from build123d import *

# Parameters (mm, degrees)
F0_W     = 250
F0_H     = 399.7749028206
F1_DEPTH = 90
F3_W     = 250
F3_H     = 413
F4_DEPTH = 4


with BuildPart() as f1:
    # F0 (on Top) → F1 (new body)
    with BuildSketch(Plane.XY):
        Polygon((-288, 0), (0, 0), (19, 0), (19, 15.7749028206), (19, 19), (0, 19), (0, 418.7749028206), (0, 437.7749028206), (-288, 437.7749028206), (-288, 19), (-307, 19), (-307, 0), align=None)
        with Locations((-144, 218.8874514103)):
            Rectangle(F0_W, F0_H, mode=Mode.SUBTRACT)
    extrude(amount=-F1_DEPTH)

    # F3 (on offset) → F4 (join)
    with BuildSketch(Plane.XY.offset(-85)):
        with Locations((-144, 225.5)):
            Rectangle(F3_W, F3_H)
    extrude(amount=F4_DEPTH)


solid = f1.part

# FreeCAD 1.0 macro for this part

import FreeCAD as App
import Part
import Sketcher

doc = App.newDocument("Part")
body = doc.addObject("PartDesign::Body", "Body")

# Sketch on XY plane
sketch1 = body.newObject("Sketcher::SketchObject", "Sketch")
sketch1.AttachmentSupport = (doc.getObject("XY_Plane"), [""])
sketch1.MapMode = "FlatFace"
sketch1.addGeometry([
    Part.LineSegment(App.Vector(19, 0, 0), App.Vector(19, 19, 0)),  # 0
    Part.LineSegment(App.Vector(19, 19, 0), App.Vector(0, 19, 0)),  # 1
    Part.LineSegment(App.Vector(0, 19, 0), App.Vector(0, 438, 0)),  # 2
    Part.LineSegment(App.Vector(0, 438, 0), App.Vector(-288, 438, 0)),  # 3
    Part.LineSegment(App.Vector(-288, 438, 0), App.Vector(-288, 19, 0)),  # 4
    Part.LineSegment(App.Vector(-288, 19, 0), App.Vector(-307, 19, 0)),  # 5
    Part.LineSegment(App.Vector(-307, 19, 0), App.Vector(-307, 0, 0)),  # 6
    Part.LineSegment(App.Vector(-307, 0, 0), App.Vector(19, 0, 0)),  # 7
    Part.LineSegment(App.Vector(-19, 19, 0), App.Vector(-269, 19, 0)),  # 8
    Part.LineSegment(App.Vector(-269, 19, 0), App.Vector(-269, 419, 0)),  # 9
    Part.LineSegment(App.Vector(-269, 419, 0), App.Vector(-19, 419, 0)),  # 10
    Part.LineSegment(App.Vector(-19, 419, 0), App.Vector(-19, 19, 0)),  # 11
], False)
sketch1.addConstraint([
    Sketcher.Constraint("Coincident", 0, 2, 1, 1),
    Sketcher.Constraint("Coincident", 1, 2, 2, 1),
    Sketcher.Constraint("Coincident", 2, 2, 3, 1),
    Sketcher.Constraint("Coincident", 3, 2, 4, 1),
    Sketcher.Constraint("Coincident", 4, 2, 5, 1),
    Sketcher.Constraint("Coincident", 5, 2, 6, 1),
    Sketcher.Constraint("Coincident", 6, 2, 7, 1),
    Sketcher.Constraint("Coincident", 7, 2, 0, 1),
    Sketcher.Constraint("Coincident", 8, 2, 9, 1),
    Sketcher.Constraint("Coincident", 9, 2, 10, 1),
    Sketcher.Constraint("Coincident", 10, 2, 11, 1),
    Sketcher.Constraint("Coincident", 11, 2, 8, 1),
    Sketcher.Constraint("Vertical", 0),
    Sketcher.Constraint("Horizontal", 1),
    Sketcher.Constraint("Vertical", 2),
    Sketcher.Constraint("Horizontal", 3),
    Sketcher.Constraint("Vertical", 4),
    Sketcher.Constraint("Horizontal", 5),
    Sketcher.Constraint("Vertical", 6),
    Sketcher.Constraint("Horizontal", 7),
    Sketcher.Constraint("Horizontal", 8),
    Sketcher.Constraint("Vertical", 9),
    Sketcher.Constraint("Horizontal", 10),
    Sketcher.Constraint("Vertical", 11),
    Sketcher.Constraint("Symmetric", 0, 2, 11, 2, -2),
    Sketcher.Constraint("PointOnObject", 1, 2, -2),
    Sketcher.Constraint("PointOnObject", 6, 2, -1),
    Sketcher.Constraint("Horizontal", 1, 2, 4, 2),
    Sketcher.Constraint("Equal", 1, 5),
    Sketcher.Constraint("Equal", 5, 0),
    Sketcher.Constraint("DistanceX", 1, 2, 1, 1, 19.0),
    Sketcher.Constraint("DistanceX", 3, 2, 3, 1, 288.0),
    Sketcher.Constraint("DistanceX", 8, 2, 8, 1, 250.0),
    Sketcher.Constraint("DistanceY", 9, 2, 3, 2, 19.0),
    Sketcher.Constraint("DistanceY", 2, 1, 2, 2, 418.774903),
])
pad1 = body.newObject("PartDesign::Pad", "Pad")
pad1.Profile = sketch1
pad1.Length = 90
pad1.Reversed = True

# Sketch on XY plane
sketch2 = body.newObject("Sketcher::SketchObject", "Sketch001")
sketch2.AttachmentSupport = (doc.getObject("XY_Plane"), [""])
sketch2.MapMode = "FlatFace"
sketch2.AttachmentOffset = App.Placement(App.Vector(0, 0, -85), App.Rotation())
sketch2.addGeometry([
    Part.LineSegment(App.Vector(-269, 432, 0), App.Vector(-269, 19, 0)),
    Part.LineSegment(App.Vector(-269, 19, 0), App.Vector(-19, 19, 0)),
    Part.LineSegment(App.Vector(-19, 19, 0), App.Vector(-19, 432, 0)),
    Part.LineSegment(App.Vector(-19, 432, 0), App.Vector(-269, 432, 0)),
], False)
sketch2.addConstraint([
    Sketcher.Constraint("Coincident", 0, 2, 1, 1),
    Sketcher.Constraint("Coincident", 1, 2, 2, 1),
    Sketcher.Constraint("Coincident", 2, 2, 3, 1),
    Sketcher.Constraint("Coincident", 3, 2, 0, 1),
    Sketcher.Constraint("Vertical", 0),
    Sketcher.Constraint("Horizontal", 1),
    Sketcher.Constraint("Vertical", 2),
    Sketcher.Constraint("Horizontal", 3),
    Sketcher.Constraint("DistanceX", 1, 1, 1, 2, 250.0),
    Sketcher.Constraint("DistanceY", 0, 2, 0, 1, 413.0),
    Sketcher.Constraint("DistanceX", 0, 2, -1, 1, 269.0),
    Sketcher.Constraint("DistanceY", -1, 1, 0, 2, 19.0),
])
pad2 = body.newObject("PartDesign::Pad", "Pad001")
pad2.Profile = sketch2
pad2.Length = 4

doc.recompute()
